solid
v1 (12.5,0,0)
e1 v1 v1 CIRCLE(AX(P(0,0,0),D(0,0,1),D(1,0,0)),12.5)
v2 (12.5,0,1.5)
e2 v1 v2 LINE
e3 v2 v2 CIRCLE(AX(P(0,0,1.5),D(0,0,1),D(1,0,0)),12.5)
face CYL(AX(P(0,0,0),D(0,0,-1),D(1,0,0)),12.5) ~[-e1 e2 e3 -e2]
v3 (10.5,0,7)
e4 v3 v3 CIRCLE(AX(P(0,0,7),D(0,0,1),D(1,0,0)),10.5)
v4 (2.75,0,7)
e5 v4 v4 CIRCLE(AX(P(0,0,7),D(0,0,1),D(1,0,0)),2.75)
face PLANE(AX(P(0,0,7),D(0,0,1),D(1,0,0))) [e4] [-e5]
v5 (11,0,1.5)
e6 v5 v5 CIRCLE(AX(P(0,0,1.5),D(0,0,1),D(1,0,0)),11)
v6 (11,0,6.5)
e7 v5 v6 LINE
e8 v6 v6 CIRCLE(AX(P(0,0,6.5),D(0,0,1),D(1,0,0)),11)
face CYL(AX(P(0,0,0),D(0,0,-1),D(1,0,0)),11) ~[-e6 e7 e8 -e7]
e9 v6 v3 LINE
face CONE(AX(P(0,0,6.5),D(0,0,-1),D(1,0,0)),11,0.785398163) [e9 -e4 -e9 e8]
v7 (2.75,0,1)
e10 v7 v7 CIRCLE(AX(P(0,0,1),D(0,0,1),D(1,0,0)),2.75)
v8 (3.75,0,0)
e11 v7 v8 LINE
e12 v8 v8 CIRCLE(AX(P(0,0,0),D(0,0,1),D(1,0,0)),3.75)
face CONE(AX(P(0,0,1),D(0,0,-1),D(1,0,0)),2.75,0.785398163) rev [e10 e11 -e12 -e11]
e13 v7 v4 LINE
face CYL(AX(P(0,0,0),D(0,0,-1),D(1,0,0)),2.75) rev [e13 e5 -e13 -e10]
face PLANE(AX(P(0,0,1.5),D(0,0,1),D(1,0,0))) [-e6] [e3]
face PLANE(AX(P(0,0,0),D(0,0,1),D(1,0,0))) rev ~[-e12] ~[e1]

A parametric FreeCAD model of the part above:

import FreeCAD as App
import Part
import Sketcher

V = App.Vector


def edges_at(feature, points):
    """Names of the edges that pass closest to the given points."""
    edges = feature.Shape.Edges
    near = lambda p: min(range(len(edges)), key=lambda i: edges[i].distToShape(Part.Vertex(*p))[0])
    return sorted({f"Edge{near(p) + 1}" for p in points})

doc = App.newDocument("Part")
body = doc.addObject("PartDesign::Body", "Body")

# Sketch on XY plane
sketch1 = body.newObject("Sketcher::SketchObject", "Sketch")
sketch1.AttachmentSupport = (doc.getObject("XY_Plane"), [""])
sketch1.MapMode = "FlatFace"
sketch1.addGeometry(Part.Circle(V(0, 0, 0), V(0, 0, 1), 11), False)
sketch1.addGeometry(Part.Circle(V(0, 0, 0), V(0, 0, 1), 2.8), False)
sketch1.addConstraint(Sketcher.Constraint("Coincident", 0, 3, -1, 1))
sketch1.addConstraint(Sketcher.Constraint("Coincident", 1, 3, -1, 1))
sketch1.addConstraint(Sketcher.Constraint("Diameter", 0, 22.0))
sketch1.addConstraint(Sketcher.Constraint("Diameter", 1, 5.5))
pad1 = body.newObject("PartDesign::Pad", "Pad")
pad1.Profile = sketch1
pad1.Length = 7

# Sketch on XY plane
sketch2 = body.newObject("Sketcher::SketchObject", "Sketch001")
sketch2.AttachmentSupport = (doc.getObject("XY_Plane"), [""])
sketch2.MapMode = "FlatFace"
sketch2.addGeometry(Part.Circle(V(0, 0, 0), V(0, 0, 1), 12), False)
sketch2.addGeometry(Part.Circle(V(0, 0, 0), V(0, 0, 1), 11), False)
sketch2.addConstraint(Sketcher.Constraint("Coincident", 0, 3, -1, 1))
sketch2.addConstraint(Sketcher.Constraint("Coincident", 1, 3, -1, 1))
sketch2.addConstraint(Sketcher.Constraint("Diameter", 0, 25.0))
sketch2.addConstraint(Sketcher.Constraint("Diameter", 1, 22.0))
pad2 = body.newObject("PartDesign::Pad", "Pad001")
pad2.Profile = sketch2
pad2.Length = 1.5
doc.recompute()

chamfer = body.newObject("PartDesign::Chamfer", "Chamfer")
chamfer.Base = (pad2, edges_at(pad2, [(-11, 0, 7)]))
chamfer.Size = 0.5
doc.recompute()

chamfer2 = body.newObject("PartDesign::Chamfer", "Chamfer001")
chamfer2.Base = (chamfer, edges_at(chamfer, [(-2.75, 0, 0)]))
chamfer2.Size = 1

doc.recompute()
